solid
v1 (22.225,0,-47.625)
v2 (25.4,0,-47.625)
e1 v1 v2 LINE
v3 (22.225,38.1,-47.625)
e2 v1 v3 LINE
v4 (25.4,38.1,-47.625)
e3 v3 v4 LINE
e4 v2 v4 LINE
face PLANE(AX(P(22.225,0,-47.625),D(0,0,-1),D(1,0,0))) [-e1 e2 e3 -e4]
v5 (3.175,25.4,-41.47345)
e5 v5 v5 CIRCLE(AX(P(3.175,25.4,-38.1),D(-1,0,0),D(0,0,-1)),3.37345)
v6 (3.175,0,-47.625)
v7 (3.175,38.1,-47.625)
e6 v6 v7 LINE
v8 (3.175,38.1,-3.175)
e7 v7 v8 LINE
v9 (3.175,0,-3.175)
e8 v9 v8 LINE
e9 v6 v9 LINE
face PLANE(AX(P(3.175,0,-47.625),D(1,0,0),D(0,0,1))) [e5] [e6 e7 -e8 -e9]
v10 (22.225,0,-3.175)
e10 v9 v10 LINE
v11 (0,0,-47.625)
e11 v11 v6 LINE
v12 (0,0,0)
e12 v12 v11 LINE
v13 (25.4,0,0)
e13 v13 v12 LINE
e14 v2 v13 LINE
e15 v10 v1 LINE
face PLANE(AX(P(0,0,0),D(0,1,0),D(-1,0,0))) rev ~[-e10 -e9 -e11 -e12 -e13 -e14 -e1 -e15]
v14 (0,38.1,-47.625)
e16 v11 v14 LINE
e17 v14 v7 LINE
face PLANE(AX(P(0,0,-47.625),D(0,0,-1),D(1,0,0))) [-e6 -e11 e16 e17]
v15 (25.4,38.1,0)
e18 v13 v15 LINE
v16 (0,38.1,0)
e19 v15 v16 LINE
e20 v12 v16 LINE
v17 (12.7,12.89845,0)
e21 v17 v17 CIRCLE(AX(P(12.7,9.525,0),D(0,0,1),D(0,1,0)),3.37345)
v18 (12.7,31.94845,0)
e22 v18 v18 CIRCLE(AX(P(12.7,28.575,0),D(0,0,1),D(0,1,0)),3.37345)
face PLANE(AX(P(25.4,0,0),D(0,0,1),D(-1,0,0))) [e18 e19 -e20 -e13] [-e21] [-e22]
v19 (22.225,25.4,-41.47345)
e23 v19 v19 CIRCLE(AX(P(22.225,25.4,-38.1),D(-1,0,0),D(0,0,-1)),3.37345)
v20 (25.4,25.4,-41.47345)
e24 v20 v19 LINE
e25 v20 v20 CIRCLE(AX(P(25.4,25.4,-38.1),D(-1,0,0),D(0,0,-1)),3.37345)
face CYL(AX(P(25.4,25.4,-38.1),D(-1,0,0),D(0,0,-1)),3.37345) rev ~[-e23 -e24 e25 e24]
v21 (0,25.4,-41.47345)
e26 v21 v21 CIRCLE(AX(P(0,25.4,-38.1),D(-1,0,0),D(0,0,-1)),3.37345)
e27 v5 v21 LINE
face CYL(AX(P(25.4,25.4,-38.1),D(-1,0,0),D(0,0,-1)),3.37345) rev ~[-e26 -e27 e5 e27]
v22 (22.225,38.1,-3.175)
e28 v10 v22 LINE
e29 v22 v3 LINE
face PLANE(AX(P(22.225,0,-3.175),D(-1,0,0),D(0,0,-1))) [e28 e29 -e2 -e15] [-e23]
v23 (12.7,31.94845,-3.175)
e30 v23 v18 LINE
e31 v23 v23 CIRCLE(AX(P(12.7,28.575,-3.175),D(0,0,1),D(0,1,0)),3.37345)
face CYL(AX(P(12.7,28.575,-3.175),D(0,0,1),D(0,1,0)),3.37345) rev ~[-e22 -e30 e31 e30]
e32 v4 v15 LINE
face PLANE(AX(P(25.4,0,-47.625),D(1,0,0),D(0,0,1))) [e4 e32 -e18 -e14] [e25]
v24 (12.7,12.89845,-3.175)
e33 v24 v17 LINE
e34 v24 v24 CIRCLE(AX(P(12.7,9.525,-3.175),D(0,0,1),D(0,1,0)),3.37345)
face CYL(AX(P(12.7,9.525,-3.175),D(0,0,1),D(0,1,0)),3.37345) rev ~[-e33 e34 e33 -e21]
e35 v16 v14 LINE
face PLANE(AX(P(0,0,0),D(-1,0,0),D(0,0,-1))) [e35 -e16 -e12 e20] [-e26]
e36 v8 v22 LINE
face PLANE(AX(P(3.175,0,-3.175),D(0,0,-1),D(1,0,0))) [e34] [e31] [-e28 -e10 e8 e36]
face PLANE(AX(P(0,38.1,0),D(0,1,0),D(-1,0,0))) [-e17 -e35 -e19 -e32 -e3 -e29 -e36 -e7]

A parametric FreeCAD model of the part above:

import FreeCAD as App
import Part
import Sketcher
Q = App.Units.Quantity


def add_polygon(sketch, points):
    """Adds a closed chain of lines whose ends are joined by coincident constraints."""
    first, n = sketch.GeometryCount, len(points)
    for a, b in zip(points, points[1:] + points[:1]):
        sketch.addGeometry(Part.LineSegment(App.Vector(*a, 0), App.Vector(*b, 0)), False)
    for i in range(n):
        sketch.addConstraint(Sketcher.Constraint("Coincident", first + i, 2, first + (i + 1) % n, 1))

doc = App.newDocument("Part")
body = doc.addObject("PartDesign::Body", "Body")

# Sketch on XZ plane
sketch1 = body.newObject("Sketcher::SketchObject", "Sketch")
sketch1.AttachmentSupport = (doc.getObject("XZ_Plane"), [""])
sketch1.MapMode = "FlatFace"
add_polygon(sketch1, [(0, -47.625), (0, 0), (25.4, 0), (25.4, -47.625), (22.225, -47.625), (22.225, -3.175), (3.175, -3.175), (3.175, -47.625)])  # lines 0-7
sketch1.addConstraint(Sketcher.Constraint("Vertical", 0))
sketch1.addConstraint(Sketcher.Constraint("Horizontal", 1))
sketch1.addConstraint(Sketcher.Constraint("Vertical", 2))
sketch1.addConstraint(Sketcher.Constraint("Horizontal", 3))
sketch1.addConstraint(Sketcher.Constraint("Vertical", 4))
sketch1.addConstraint(Sketcher.Constraint("Horizontal", 5))
sketch1.addConstraint(Sketcher.Constraint("Vertical", 6))
sketch1.addConstraint(Sketcher.Constraint("Horizontal", 7))
sketch1.addConstraint(Sketcher.Constraint("Coincident", 0, 2, -1, 1))
sketch1.addConstraint(Sketcher.Constraint("Horizontal", 3, 2, 6, 2))
sketch1.addConstraint(Sketcher.Constraint("Equal", 3, 7))
sketch1.addConstraint(Sketcher.Constraint("DistanceX", 1, 1, 1, 2, Q("1 in")))
sketch1.addConstraint(Sketcher.Constraint("DistanceX", 3, 2, 3, 1, Q("0.125 in")))
sketch1.addConstraint(Sketcher.Constraint("DistanceY", 0, 1, 0, 2, Q("1.875 in")))
sketch1.addConstraint(Sketcher.Constraint("DistanceY", 4, 2, -1, 1, Q("0.125 in")))
pad1 = body.newObject("PartDesign::Pad", "Pad")
pad1.Profile = sketch1
pad1.Length = Q("1.5 in")
pad1.Reversed = True

# Sketch on YZ plane
sketch2 = body.newObject("Sketcher::SketchObject", "Sketch001")
sketch2.AttachmentSupport = (doc.getObject("YZ_Plane"), [""])
sketch2.MapMode = "FlatFace"
sketch2.AttachmentOffset = App.Placement(App.Vector(0, 0, 1 * 25.4), App.Rotation())
sketch2.addGeometry(Part.Circle(App.Vector(25.4, -38.1, 0), App.Vector(0, 0, 1), 3.37345), False)
sketch2.addConstraint(Sketcher.Constraint("Diameter", 0, Q("0.2656299 in")))
sketch2.addConstraint(Sketcher.Constraint("DistanceX", -1, 1, 0, 3, Q("1 in")))
sketch2.addConstraint(Sketcher.Constraint("DistanceY", 0, 3, -1, 1, Q("1.5 in")))
doc.recompute()
hole = body.newObject("PartDesign::Hole", "Hole")
hole.Profile = sketch2
hole.ThreadType = "None"
hole.Diameter = Q("0.265626 in")
hole.DepthType = "ThroughAll"

# Sketch on XY plane
sketch3 = body.newObject("Sketcher::SketchObject", "Sketch002")
sketch3.AttachmentSupport = (doc.getObject("XY_Plane"), [""])
sketch3.MapMode = "FlatFace"
sketch3.AttachmentOffset = App.Placement(App.Vector(0, 0, -0.125 * 25.4), App.Rotation())
sketch3.addGeometry(Part.Circle(App.Vector(12.7, 9.525, 0), App.Vector(0, 0, 1), 3.37345), False)
sketch3.addGeometry(Part.Circle(App.Vector(12.7, 28.575, 0), App.Vector(0, 0, 1), 3.37345), False)
sketch3.addConstraint(Sketcher.Constraint("Equal", 0, 1))
sketch3.addConstraint(Sketcher.Constraint("Vertical", 0, 3, 1, 3))
sketch3.addConstraint(Sketcher.Constraint("Diameter", 0, Q("0.2656299 in")))
sketch3.addConstraint(Sketcher.Constraint("DistanceX", -1, 1, 0, 3, Q("0.5 in")))
sketch3.addConstraint(Sketcher.Constraint("DistanceY", 0, 3, 1, 3, Q("0.75 in")))
sketch3.addConstraint(Sketcher.Constraint("DistanceY", -1, 1, 0, 3, Q("0.375 in")))
doc.recompute()
hole2 = body.newObject("PartDesign::Hole", "Hole001")
hole2.Profile = sketch3
hole2.ThreadType = "None"
hole2.Diameter = Q("0.265626 in")
hole2.DepthType = "ThroughAll"
hole2.Reversed = True

doc.recompute()
